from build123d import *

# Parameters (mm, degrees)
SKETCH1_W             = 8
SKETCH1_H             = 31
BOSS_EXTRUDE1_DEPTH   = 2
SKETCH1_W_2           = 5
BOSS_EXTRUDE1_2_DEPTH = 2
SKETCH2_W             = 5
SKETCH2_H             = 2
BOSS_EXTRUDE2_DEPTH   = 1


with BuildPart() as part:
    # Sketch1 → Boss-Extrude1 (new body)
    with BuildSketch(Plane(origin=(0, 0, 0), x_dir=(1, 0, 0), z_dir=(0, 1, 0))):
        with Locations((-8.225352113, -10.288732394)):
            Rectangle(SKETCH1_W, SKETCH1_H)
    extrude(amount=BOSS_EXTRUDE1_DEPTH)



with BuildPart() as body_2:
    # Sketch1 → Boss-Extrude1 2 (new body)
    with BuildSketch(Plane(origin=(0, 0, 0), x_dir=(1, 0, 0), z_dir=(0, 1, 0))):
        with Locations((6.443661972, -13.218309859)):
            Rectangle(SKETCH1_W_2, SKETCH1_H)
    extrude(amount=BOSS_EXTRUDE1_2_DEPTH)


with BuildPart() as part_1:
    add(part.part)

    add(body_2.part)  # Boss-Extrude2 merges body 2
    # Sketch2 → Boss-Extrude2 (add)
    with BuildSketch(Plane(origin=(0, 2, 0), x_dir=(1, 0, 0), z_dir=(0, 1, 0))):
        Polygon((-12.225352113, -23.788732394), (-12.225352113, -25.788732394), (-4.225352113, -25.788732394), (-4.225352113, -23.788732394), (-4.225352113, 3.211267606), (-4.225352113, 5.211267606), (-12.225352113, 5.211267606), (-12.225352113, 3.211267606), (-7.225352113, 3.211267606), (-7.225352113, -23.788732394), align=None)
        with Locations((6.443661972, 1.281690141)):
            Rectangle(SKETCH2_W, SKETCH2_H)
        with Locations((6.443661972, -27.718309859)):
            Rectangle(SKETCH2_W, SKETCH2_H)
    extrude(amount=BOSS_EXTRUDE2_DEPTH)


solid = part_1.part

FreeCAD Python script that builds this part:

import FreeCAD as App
import Part
import Sketcher
Q = App.Units.Quantity

doc = App.newDocument("Part")
body = doc.addObject("PartDesign::Body", "Body")

# Sketch on XZ plane
sketch1 = doc.addObject("Sketcher::SketchObject", "Sketch")
body.addObject(sketch1)
sketch1.AttachmentSupport = (doc.XZ_Plane, [""])
sketch1.MapMode = "FlatFace"
sketch1.addGeometry(Part.LineSegment(App.Vector(-12, -5, 0), App.Vector(-12, 26, 0)), False)
sketch1.addGeometry(Part.LineSegment(App.Vector(-12, 26, 0), App.Vector(-4, 26, 0)), False)
sketch1.addGeometry(Part.LineSegment(App.Vector(-4, 26, 0), App.Vector(-4, -5, 0)), False)
sketch1.addGeometry(Part.LineSegment(App.Vector(-4, -5, 0), App.Vector(-12, -5, 0)), False)
sketch1.addConstraint(Sketcher.Constraint("Coincident", 0, 2, 1, 1))
sketch1.addConstraint(Sketcher.Constraint("Coincident", 1, 2, 2, 1))
sketch1.addConstraint(Sketcher.Constraint("Coincident", 2, 2, 3, 1))
sketch1.addConstraint(Sketcher.Constraint("Coincident", 3, 2, 0, 1))
sketch1.addConstraint(Sketcher.Constraint("Vertical", 0))
sketch1.addConstraint(Sketcher.Constraint("Horizontal", 1))
sketch1.addConstraint(Sketcher.Constraint("Vertical", 2))
sketch1.addConstraint(Sketcher.Constraint("Horizontal", 3))
sketch1.addConstraint(Sketcher.Constraint("DistanceX", 1, 1, 1, 2, Q("8 mm")))
sketch1.addConstraint(Sketcher.Constraint("DistanceY", 0, 1, 0, 2, Q("31 mm")))
sketch1.addConstraint(Sketcher.Constraint("DistanceX", 0, 2, -1, 1, Q("12.225352 mm")))
sketch1.addConstraint(Sketcher.Constraint("DistanceY", -1, 1, 0, 2, Q("25.788732 mm")))
pad1 = doc.addObject("PartDesign::Pad", "Pad")
body.addObject(pad1)
pad1.Profile = sketch1
pad1.Length = 2
pad1.Reversed = True
body2 = doc.addObject("PartDesign::Body", "Body001")

# Sketch on XZ plane
sketch2 = doc.addObject("Sketcher::SketchObject", "Sketch001")
body2.addObject(sketch2)
sketch2.AttachmentSupport = (doc.getObject("XZ_Plane001"), [""])
sketch2.MapMode = "FlatFace"
sketch2.addGeometry(Part.LineSegment(App.Vector(3.9, -2.3, 0), App.Vector(3.9, 28.7, 0)), False)
sketch2.addGeometry(Part.LineSegment(App.Vector(3.9, 28.7, 0), App.Vector(8.9, 28.7, 0)), False)
sketch2.addGeometry(Part.LineSegment(App.Vector(8.9, 28.7, 0), App.Vector(8.9, -2.3, 0)), False)
sketch2.addGeometry(Part.LineSegment(App.Vector(8.9, -2.3, 0), App.Vector(3.9, -2.3, 0)), False)
sketch2.addConstraint(Sketcher.Constraint("Coincident", 0, 2, 1, 1))
sketch2.addConstraint(Sketcher.Constraint("Coincident", 1, 2, 2, 1))
sketch2.addConstraint(Sketcher.Constraint("Coincident", 2, 2, 3, 1))
sketch2.addConstraint(Sketcher.Constraint("Coincident", 3, 2, 0, 1))
sketch2.addConstraint(Sketcher.Constraint("Vertical", 0))
sketch2.addConstraint(Sketcher.Constraint("Horizontal", 1))
sketch2.addConstraint(Sketcher.Constraint("Vertical", 2))
sketch2.addConstraint(Sketcher.Constraint("Horizontal", 3))
sketch2.addConstraint(Sketcher.Constraint("DistanceX", 1, 1, 1, 2, Q("5 mm")))
sketch2.addConstraint(Sketcher.Constraint("DistanceY", 0, 1, 0, 2, Q("31 mm")))
sketch2.addConstraint(Sketcher.Constraint("DistanceX", -1, 1, 0, 2, Q("3.943662 mm")))
sketch2.addConstraint(Sketcher.Constraint("DistanceY", -1, 1, 0, 2, Q("28.71831 mm")))
pad2 = doc.addObject("PartDesign::Pad", "Pad001")
body2.addObject(pad2)
pad2.Profile = sketch2
pad2.Length = 2
pad2.Reversed = True
body.AllowCompound = True
doc.recompute()

boolean = doc.addObject("PartDesign::Boolean", "Boolean")
body.addObject(boolean)
boolean.Type = "Fuse"
boolean.addObjects([body2])

# Sketch on XZ plane
sketch3 = doc.addObject("Sketcher::SketchObject", "Sketch002")
body.addObject(sketch3)
sketch3.AttachmentSupport = (doc.XZ_Plane, [""])
sketch3.MapMode = "FlatFace"
sketch3.AttachmentOffset = App.Placement(App.Vector(0, 0, -2), App.Rotation())
sketch3.addGeometry(Part.LineSegment(App.Vector(-12.2, 23.8, 0), App.Vector(-12.2, 25.8, 0)), False)
sketch3.addGeometry(Part.LineSegment(App.Vector(-12.2, 25.8, 0), App.Vector(-4.2, 25.8, 0)), False)
sketch3.addGeometry(Part.LineSegment(App.Vector(-4.2, 25.8, 0), App.Vector(-4.2, -5.2, 0)), False)
sketch3.addGeometry(Part.LineSegment(App.Vector(-4.2, -5.2, 0), App.Vector(-12.2, -5.2, 0)), False)
sketch3.addGeometry(Part.LineSegment(App.Vector(-12.2, -5.2, 0), App.Vector(-12.2, -3.2, 0)), False)
sketch3.addGeometry(Part.LineSegment(App.Vector(-12.2, -3.2, 0), App.Vector(-7.2, -3.2, 0)), False)
sketch3.addGeometry(Part.LineSegment(App.Vector(-7.2, -3.2, 0), App.Vector(-7.2, 23.8, 0)), False)
sketch3.addGeometry(Part.LineSegment(App.Vector(-7.2, 23.8, 0), App.Vector(-12.2, 23.8, 0)), False)
sketch3.addGeometry(Part.LineSegment(App.Vector(3.9, -2.3, 0), App.Vector(3.9, -0.3, 0)), False)
sketch3.addGeometry(Part.LineSegment(App.Vector(3.9, -0.3, 0), App.Vector(8.9, -0.3, 0)), False)
sketch3.addGeometry(Part.LineSegment(App.Vector(8.9, -0.3, 0), App.Vector(8.9, -2.3, 0)), False)
sketch3.addGeometry(Part.LineSegment(App.Vector(8.9, -2.3, 0), App.Vector(3.9, -2.3, 0)), False)
sketch3.addGeometry(Part.LineSegment(App.Vector(3.9, 26.7, 0), App.Vector(3.9, 28.7, 0)), False)
sketch3.addGeometry(Part.LineSegment(App.Vector(3.9, 28.7, 0), App.Vector(8.9, 28.7, 0)), False)
sketch3.addGeometry(Part.LineSegment(App.Vector(8.9, 28.7, 0), App.Vector(8.9, 26.7, 0)), False)
sketch3.addGeometry(Part.LineSegment(App.Vector(8.9, 26.7, 0), App.Vector(3.9, 26.7, 0)), False)
sketch3.addConstraint(Sketcher.Constraint("Coincident", 0, 2, 1, 1))
sketch3.addConstraint(Sketcher.Constraint("Coincident", 1, 2, 2, 1))
sketch3.addConstraint(Sketcher.Constraint("Coincident", 2, 2, 3, 1))
sketch3.addConstraint(Sketcher.Constraint("Coincident", 3, 2, 4, 1))
sketch3.addConstraint(Sketcher.Constraint("Coincident", 4, 2, 5, 1))
sketch3.addConstraint(Sketcher.Constraint("Coincident", 5, 2, 6, 1))
sketch3.addConstraint(Sketcher.Constraint("Coincident", 6, 2, 7, 1))
sketch3.addConstraint(Sketcher.Constraint("Coincident", 7, 2, 0, 1))
sketch3.addConstraint(Sketcher.Constraint("Coincident", 8, 2, 9, 1))
sketch3.addConstraint(Sketcher.Constraint("Coincident", 9, 2, 10, 1))
sketch3.addConstraint(Sketcher.Constraint("Coincident", 10, 2, 11, 1))
sketch3.addConstraint(Sketcher.Constraint("Coincident", 11, 2, 8, 1))
sketch3.addConstraint(Sketcher.Constraint("Coincident", 12, 2, 13, 1))
sketch3.addConstraint(Sketcher.Constraint("Coincident", 13, 2, 14, 1))
sketch3.addConstraint(Sketcher.Constraint("Coincident", 14, 2, 15, 1))
sketch3.addConstraint(Sketcher.Constraint("Coincident", 15, 2, 12, 1))
sketch3.addConstraint(Sketcher.Constraint("Vertical", 0))
sketch3.addConstraint(Sketcher.Constraint("Horizontal", 1))
sketch3.addConstraint(Sketcher.Constraint("Vertical", 2))
sketch3.addConstraint(Sketcher.Constraint("Horizontal", 3))
sketch3.addConstraint(Sketcher.Constraint("Vertical", 4))
sketch3.addConstraint(Sketcher.Constraint("Horizontal", 5))
sketch3.addConstraint(Sketcher.Constraint("Vertical", 6))
sketch3.addConstraint(Sketcher.Constraint("Horizontal", 7))
sketch3.addConstraint(Sketcher.Constraint("Vertical", 8))
sketch3.addConstraint(Sketcher.Constraint("Horizontal", 9))
sketch3.addConstraint(Sketcher.Constraint("Vertical", 10))
sketch3.addConstraint(Sketcher.Constraint("Horizontal", 11))
sketch3.addConstraint(Sketcher.Constraint("Vertical", 12))
sketch3.addConstraint(Sketcher.Constraint("Horizontal", 13))
sketch3.addConstraint(Sketcher.Constraint("Vertical", 14))
sketch3.addConstraint(Sketcher.Constraint("Horizontal", 15))
sketch3.addConstraint(Sketcher.Constraint("Vertical", 0, 2, 3, 2))
sketch3.addConstraint(Sketcher.Constraint("Vertical", 11, 2, 12, 2))
sketch3.addConstraint(Sketcher.Constraint("Vertical", 10, 2, 13, 2))
sketch3.addConstraint(Sketcher.Constraint("Equal", 7, 9))
sketch3.addConstraint(Sketcher.Constraint("Equal", 0, 4))
sketch3.addConstraint(Sketcher.Constraint("Equal", 4, 8))
sketch3.addConstraint(Sketcher.Constraint("Equal", 10, 12))
sketch3.addConstraint(Sketcher.Constraint("DistanceX", 1, 1, 1, 2, Q("8 mm")))
sketch3.addConstraint(Sketcher.Constraint("DistanceX", 5, 1, 5, 2, Q("5 mm")))
sketch3.addConstraint(Sketcher.Constraint("DistanceY", 0, 1, 0, 2, Q("2 mm")))
sketch3.addConstraint(Sketcher.Constraint("DistanceY", 2, 2, 2, 1, Q("31 mm")))
sketch3.addConstraint(Sketcher.Constraint("DistanceY", 8, 2, 12, 2, Q("29 mm")))
sketch3.addConstraint(Sketcher.Constraint("DistanceX", -1, 1, 8, 2, Q("3.943662 mm")))
sketch3.addConstraint(Sketcher.Constraint("DistanceY", 8, 2, -1, 1, Q("0.28169 mm")))
sketch3.addConstraint(Sketcher.Constraint("DistanceX", 0, 2, -1, 1, Q("12.225352 mm")))
sketch3.addConstraint(Sketcher.Constraint("DistanceY", -1, 1, 0, 2, Q("25.788732 mm")))
pad3 = doc.addObject("PartDesign::Pad", "Pad002")
body.addObject(pad3)
pad3.Profile = sketch3
pad3.Length = 1
pad3.Reversed = True

doc.recompute()
